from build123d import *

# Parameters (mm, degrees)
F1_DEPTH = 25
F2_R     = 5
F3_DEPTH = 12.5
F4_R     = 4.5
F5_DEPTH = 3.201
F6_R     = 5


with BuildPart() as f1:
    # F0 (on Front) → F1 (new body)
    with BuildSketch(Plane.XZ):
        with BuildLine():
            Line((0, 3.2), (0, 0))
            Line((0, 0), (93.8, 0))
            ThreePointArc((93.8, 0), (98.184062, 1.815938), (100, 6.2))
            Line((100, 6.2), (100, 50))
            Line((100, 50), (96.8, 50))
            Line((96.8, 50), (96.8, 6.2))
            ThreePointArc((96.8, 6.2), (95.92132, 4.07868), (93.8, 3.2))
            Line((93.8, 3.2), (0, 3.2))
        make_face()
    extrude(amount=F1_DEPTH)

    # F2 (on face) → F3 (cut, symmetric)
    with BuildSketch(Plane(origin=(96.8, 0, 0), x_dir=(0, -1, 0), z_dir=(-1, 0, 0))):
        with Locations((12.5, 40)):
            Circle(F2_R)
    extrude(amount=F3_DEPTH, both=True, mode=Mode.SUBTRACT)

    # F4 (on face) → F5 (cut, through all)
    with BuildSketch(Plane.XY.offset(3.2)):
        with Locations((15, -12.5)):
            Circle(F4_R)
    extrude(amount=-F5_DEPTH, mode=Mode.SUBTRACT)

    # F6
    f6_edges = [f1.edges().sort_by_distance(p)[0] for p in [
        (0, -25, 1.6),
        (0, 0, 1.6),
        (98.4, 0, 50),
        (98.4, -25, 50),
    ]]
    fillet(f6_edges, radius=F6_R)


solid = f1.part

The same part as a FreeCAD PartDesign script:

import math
import FreeCAD as App
import Part
import Sketcher

V = App.Vector
Q = App.Units.Quantity


def edges_at(feature, points):
    """Names of the edges that pass closest to the given points."""
    edges = feature.Shape.Edges
    near = lambda p: min(range(len(edges)), key=lambda i: edges[i].distToShape(Part.Vertex(*p))[0])
    return sorted({f"Edge{near(p) + 1}" for p in points})

doc = App.newDocument("Part")
params = doc.addObject("Spreadsheet::Sheet", "Params")
for row, (alias, value) in enumerate([
    ("sketch1_radius", "3.000001 mm"),
    ("sketch1_radius2", "6.2 mm"),
    ("sketch1_width", "93.8 mm"),
    ("sketch1_height", "43.8 mm"),
    ("pad1_length", "25 mm"),
    ("sketch2_diameter", "10 mm"),
    ("pocket1_length", "25 mm"),
    ("sketch3_diameter", "9 mm"),
    ("fillet_radius", "5 mm"),
], start=1):
    params.set(f"A{row}", alias)
    params.set(f"B{row}", "=" + value)
    params.setAlias(f"B{row}", alias)

body = doc.addObject("PartDesign::Body", "Body")

sketch1 = body.newObject("Sketcher::SketchObject", "Sketch")
sketch1.AttachmentSupport = (doc.getObject("XZ_Plane"), [""])
sketch1.MapMode = "FlatFace"
sketch1.addGeometry(Part.LineSegment(V(0, 3.2, 0), V(0, 0, 0)), False)
sketch1.addGeometry(Part.LineSegment(V(0, 0, 0), V(93.8, 0, 0)), False)
sketch1.addGeometry(Part.ArcOfCircle(Part.Circle(V(93.8, 6.2, 0), V(0, 0, 1), 6.2), math.radians(-90), math.radians(0)), False)
sketch1.addGeometry(Part.LineSegment(V(100, 6.2, 0), V(100, 50, 0)), False)
sketch1.addGeometry(Part.LineSegment(V(100, 50, 0), V(96.8, 50, 0)), False)
sketch1.addGeometry(Part.LineSegment(V(96.8, 50, 0), V(96.8, 6.2, 0)), False)
sketch1.addGeometry(Part.ArcOfCircle(Part.Circle(V(93.8, 6.2, 0), V(0, 0, 1), 3), math.radians(-90), math.radians(0)), False)
sketch1.addGeometry(Part.LineSegment(V(93.8, 3.2, 0), V(0, 3.2, 0)), False)
sketch1.addConstraint(Sketcher.Constraint("Coincident", 0, 2, 1, 1))
sketch1.addConstraint(Sketcher.Constraint("Tangent", 1, 2, 2, 1))
sketch1.addConstraint(Sketcher.Constraint("Tangent", 2, 2, 3, 1))
sketch1.addConstraint(Sketcher.Constraint("Coincident", 3, 2, 4, 1))
sketch1.addConstraint(Sketcher.Constraint("Coincident", 4, 2, 5, 1))
sketch1.addConstraint(Sketcher.Constraint("Tangent", 5, 2, 6, 2))
sketch1.addConstraint(Sketcher.Constraint("Tangent", 6, 1, 7, 1))
sketch1.addConstraint(Sketcher.Constraint("Coincident", 7, 2, 0, 1))
sketch1.addConstraint(Sketcher.Constraint("Vertical", 0))
sketch1.addConstraint(Sketcher.Constraint("Horizontal", 1))
sketch1.addConstraint(Sketcher.Constraint("Vertical", 3))
sketch1.addConstraint(Sketcher.Constraint("Horizontal", 4))
sketch1.addConstraint(Sketcher.Constraint("Vertical", 5))
sketch1.addConstraint(Sketcher.Constraint("Horizontal", 7))
sketch1.addConstraint(Sketcher.Constraint("Coincident", 0, 2, -1, 1))
sketch1.addConstraint(Sketcher.Constraint("Coincident", 6, 3, 2, 3))
sketch1.addConstraint(Sketcher.Constraint("Radius", 6, Q("3.000001 mm")))
sketch1.addConstraint(Sketcher.Constraint("Radius", 2, Q("6.2 mm")))
sketch1.addConstraint(Sketcher.Constraint("DistanceX", 1, 1, 1, 2, Q("93.8 mm")))
sketch1.addConstraint(Sketcher.Constraint("DistanceY", 3, 1, 3, 2, Q("43.8 mm")))
sketch1.setExpression("Constraints[16]", "Params.sketch1_radius")
sketch1.setExpression("Constraints[17]", "Params.sketch1_radius2")
sketch1.setExpression("Constraints[18]", "Params.sketch1_width")
sketch1.setExpression("Constraints[19]", "Params.sketch1_height")
pad1 = body.newObject("PartDesign::Pad", "Pad")
pad1.Profile = sketch1
pad1.setExpression("Length", "Params.pad1_length")

sketch2 = body.newObject("Sketcher::SketchObject", "Sketch001")
sketch2.AttachmentSupport = (doc.getObject("YZ_Plane"), [""])
sketch2.MapMode = "FlatFace"
sketch2.AttachmentOffset = App.Placement(V(0, 0, 96.8), App.Rotation())
sketch2.addGeometry(Part.Circle(V(-12, 40, 0), V(0, 0, 1), 5), False)
sketch2.addConstraint(Sketcher.Constraint("Diameter", 0, Q("10 mm")))
sketch2.addConstraint(Sketcher.Constraint("DistanceY", -1, 1, 0, 3, Q("40 mm")))
sketch2.addConstraint(Sketcher.Constraint("DistanceX", 0, 3, -1, 1, Q("12.5 mm")))
sketch2.setExpression("Constraints[0]", "Params.sketch2_diameter")
pocket1 = body.newObject("PartDesign::Pocket", "Pocket")
pocket1.Profile = sketch2
pocket1.setExpression("Length", "Params.pocket1_length")
pocket1.Midplane = True

sketch3 = body.newObject("Sketcher::SketchObject", "Sketch002")
sketch3.AttachmentSupport = (doc.getObject("XY_Plane"), [""])
sketch3.MapMode = "FlatFace"
sketch3.AttachmentOffset = App.Placement(V(0, 0, 3.2), App.Rotation())
sketch3.addGeometry(Part.Circle(V(15, -12.5, 0), V(0, 0, 1), 4.5), False)
sketch3.addConstraint(Sketcher.Constraint("Diameter", 0, Q("9 mm")))
sketch3.addConstraint(Sketcher.Constraint("DistanceX", -1, 1, 0, 3, Q("15 mm")))
sketch3.addConstraint(Sketcher.Constraint("DistanceY", 0, 3, -1, 1, Q("12.5 mm")))
sketch3.setExpression("Constraints[0]", "Params.sketch3_diameter")
pocket2 = body.newObject("PartDesign::Pocket", "Pocket001")
pocket2.Profile = sketch3
pocket2.Type = "ThroughAll"
doc.recompute()

fillet = body.newObject("PartDesign::Fillet", "Fillet")
fillet.Base = (pocket2, edges_at(pocket2, [
    (0, -25, 1.6),
    (0, 0, 1.6),
    (98.4, 0, 50),
    (98.4, -25, 50),
]))
fillet.setExpression("Radius", "Params.fillet_radius")

doc.recompute()
